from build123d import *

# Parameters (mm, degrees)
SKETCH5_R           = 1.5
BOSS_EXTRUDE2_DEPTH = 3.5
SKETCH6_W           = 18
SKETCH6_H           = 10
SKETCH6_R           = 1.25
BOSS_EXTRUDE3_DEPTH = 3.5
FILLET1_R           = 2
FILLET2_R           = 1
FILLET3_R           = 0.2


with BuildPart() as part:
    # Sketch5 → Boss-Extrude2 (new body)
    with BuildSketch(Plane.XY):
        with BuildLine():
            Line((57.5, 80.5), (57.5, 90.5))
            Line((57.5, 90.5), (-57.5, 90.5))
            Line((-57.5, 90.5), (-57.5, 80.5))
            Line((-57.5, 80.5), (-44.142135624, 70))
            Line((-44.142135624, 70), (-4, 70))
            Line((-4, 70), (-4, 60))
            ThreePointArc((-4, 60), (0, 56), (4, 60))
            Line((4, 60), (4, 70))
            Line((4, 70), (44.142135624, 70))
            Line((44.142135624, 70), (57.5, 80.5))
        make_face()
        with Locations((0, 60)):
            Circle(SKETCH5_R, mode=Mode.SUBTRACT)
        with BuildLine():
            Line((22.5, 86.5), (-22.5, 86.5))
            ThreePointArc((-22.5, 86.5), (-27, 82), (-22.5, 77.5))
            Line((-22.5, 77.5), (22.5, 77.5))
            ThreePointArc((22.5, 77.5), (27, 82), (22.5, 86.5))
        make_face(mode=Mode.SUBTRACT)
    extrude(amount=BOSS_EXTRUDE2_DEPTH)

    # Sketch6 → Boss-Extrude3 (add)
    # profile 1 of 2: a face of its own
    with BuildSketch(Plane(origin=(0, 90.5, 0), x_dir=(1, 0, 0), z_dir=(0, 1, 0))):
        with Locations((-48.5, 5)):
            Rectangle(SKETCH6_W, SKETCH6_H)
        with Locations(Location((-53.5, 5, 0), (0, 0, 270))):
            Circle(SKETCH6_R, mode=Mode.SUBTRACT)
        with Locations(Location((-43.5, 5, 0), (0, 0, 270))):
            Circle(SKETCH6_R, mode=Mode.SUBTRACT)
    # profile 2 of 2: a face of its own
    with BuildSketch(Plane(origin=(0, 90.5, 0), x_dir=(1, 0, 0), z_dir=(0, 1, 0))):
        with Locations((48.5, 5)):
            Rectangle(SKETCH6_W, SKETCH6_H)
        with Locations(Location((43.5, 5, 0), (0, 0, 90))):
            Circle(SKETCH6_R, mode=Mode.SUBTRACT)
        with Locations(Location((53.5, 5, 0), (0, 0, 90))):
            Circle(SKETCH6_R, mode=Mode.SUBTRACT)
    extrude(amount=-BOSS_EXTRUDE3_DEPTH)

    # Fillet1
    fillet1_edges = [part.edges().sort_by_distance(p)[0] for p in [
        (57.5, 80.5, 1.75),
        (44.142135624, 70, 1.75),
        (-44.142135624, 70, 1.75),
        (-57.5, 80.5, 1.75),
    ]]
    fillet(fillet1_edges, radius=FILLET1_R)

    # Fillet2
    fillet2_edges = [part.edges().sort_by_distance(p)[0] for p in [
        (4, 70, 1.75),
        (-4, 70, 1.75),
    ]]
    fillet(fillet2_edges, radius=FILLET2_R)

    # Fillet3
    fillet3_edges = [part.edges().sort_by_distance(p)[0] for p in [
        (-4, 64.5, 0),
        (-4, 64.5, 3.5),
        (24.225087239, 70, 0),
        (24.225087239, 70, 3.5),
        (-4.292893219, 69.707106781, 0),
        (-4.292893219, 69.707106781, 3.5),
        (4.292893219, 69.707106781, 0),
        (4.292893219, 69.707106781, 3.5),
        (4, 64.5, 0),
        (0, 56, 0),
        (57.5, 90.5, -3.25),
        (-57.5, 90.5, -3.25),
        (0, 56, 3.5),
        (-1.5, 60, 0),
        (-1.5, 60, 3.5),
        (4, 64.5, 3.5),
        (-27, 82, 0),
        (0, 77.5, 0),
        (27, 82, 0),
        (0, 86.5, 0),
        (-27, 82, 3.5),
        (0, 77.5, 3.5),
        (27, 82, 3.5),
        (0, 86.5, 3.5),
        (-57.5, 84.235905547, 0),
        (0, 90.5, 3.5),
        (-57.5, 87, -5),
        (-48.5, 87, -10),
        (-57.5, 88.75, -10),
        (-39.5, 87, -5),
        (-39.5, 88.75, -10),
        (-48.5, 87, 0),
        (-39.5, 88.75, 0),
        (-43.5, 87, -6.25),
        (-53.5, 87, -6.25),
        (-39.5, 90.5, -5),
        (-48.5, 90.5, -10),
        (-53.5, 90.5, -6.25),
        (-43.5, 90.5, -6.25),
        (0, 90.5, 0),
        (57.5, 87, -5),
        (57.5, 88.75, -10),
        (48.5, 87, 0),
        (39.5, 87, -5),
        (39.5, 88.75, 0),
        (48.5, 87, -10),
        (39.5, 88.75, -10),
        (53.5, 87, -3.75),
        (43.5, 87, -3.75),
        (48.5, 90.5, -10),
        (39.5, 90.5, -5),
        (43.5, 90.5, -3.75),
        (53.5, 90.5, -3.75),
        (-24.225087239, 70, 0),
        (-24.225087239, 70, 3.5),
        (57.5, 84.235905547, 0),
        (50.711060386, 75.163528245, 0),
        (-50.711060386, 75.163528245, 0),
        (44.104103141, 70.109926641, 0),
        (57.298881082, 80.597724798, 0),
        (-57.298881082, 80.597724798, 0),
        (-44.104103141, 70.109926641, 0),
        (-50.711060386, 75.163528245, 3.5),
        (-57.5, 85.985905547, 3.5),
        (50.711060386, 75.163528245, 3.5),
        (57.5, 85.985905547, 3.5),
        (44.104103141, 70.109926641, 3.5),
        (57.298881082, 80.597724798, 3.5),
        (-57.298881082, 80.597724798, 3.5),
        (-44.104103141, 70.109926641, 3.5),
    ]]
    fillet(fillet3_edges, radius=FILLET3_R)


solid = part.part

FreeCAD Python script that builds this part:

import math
import FreeCAD as App
import Part
import Sketcher
Q = App.Units.Quantity


def edges_at(feature, points):
    """Names of the edges that pass closest to the given points."""
    edges = feature.Shape.Edges
    near = lambda p: min(range(len(edges)), key=lambda i: edges[i].distToShape(Part.Vertex(*p))[0])
    return sorted({f"Edge{near(p) + 1}" for p in points})


def add_polygon(sketch, points):
    """Adds a closed chain of lines whose ends are joined by coincident constraints."""
    first, n = sketch.GeometryCount, len(points)
    for a, b in zip(points, points[1:] + points[:1]):
        sketch.addGeometry(Part.LineSegment(App.Vector(*a, 0), App.Vector(*b, 0)), False)
    for i in range(n):
        sketch.addConstraint(Sketcher.Constraint("Coincident", first + i, 2, first + (i + 1) % n, 1))

doc = App.newDocument("Part")
body = doc.addObject("PartDesign::Body", "Body")

# Sketch on XY plane
sketch1 = body.newObject("Sketcher::SketchObject", "Sketch")
sketch1.AttachmentSupport = (doc.getObject("XY_Plane"), [""])
sketch1.MapMode = "FlatFace"
sketch1.addGeometry([
    Part.LineSegment(App.Vector(57.5, 80.5, 0), App.Vector(57.5, 90.5, 0)),  # 0
    Part.LineSegment(App.Vector(57.5, 90.5, 0), App.Vector(-57.5, 90.5, 0)),  # 1
    Part.LineSegment(App.Vector(-57.5, 90.5, 0), App.Vector(-57.5, 80.5, 0)),  # 2
    Part.LineSegment(App.Vector(-57.5, 80.5, 0), App.Vector(-44.142136, 70, 0)),  # 3
    Part.LineSegment(App.Vector(-44.142136, 70, 0), App.Vector(-4, 70, 0)),  # 4
    Part.LineSegment(App.Vector(-4, 70, 0), App.Vector(-4, 60, 0)),  # 5
    Part.ArcOfCircle(Part.Circle(App.Vector(0, 60, 0), App.Vector(0, 0, 1), 4), math.radians(180), math.radians(360)),  # 6
    Part.LineSegment(App.Vector(4, 60, 0), App.Vector(4, 70, 0)),  # 7
    Part.LineSegment(App.Vector(4, 70, 0), App.Vector(44.142136, 70, 0)),  # 8
    Part.LineSegment(App.Vector(44.142136, 70, 0), App.Vector(57.5, 80.5, 0)),  # 9
    Part.Circle(App.Vector(0, 60, 0), App.Vector(0, 0, 1), 1.5),  # 10
    Part.LineSegment(App.Vector(-22.5, 86.5, 0), App.Vector(22.5, 86.5, 0)),  # 11
    Part.ArcOfCircle(Part.Circle(App.Vector(22.5, 82, 0), App.Vector(0, 0, 1), 4.5), math.radians(-90), math.radians(90)),  # 12
    Part.LineSegment(App.Vector(22.5, 77.5, 0), App.Vector(-22.5, 77.5, 0)),  # 13
    Part.ArcOfCircle(Part.Circle(App.Vector(-22.5, 82, 0), App.Vector(0, 0, 1), 4.5), math.radians(90), math.radians(270)),  # 14
], False)
sketch1.addConstraint([
    Sketcher.Constraint("Coincident", 0, 2, 1, 1),
    Sketcher.Constraint("Coincident", 1, 2, 2, 1),
    Sketcher.Constraint("Coincident", 2, 2, 3, 1),
    Sketcher.Constraint("Coincident", 3, 2, 4, 1),
    Sketcher.Constraint("Coincident", 4, 2, 5, 1),
    Sketcher.Constraint("Tangent", 5, 2, 6, 1),
    Sketcher.Constraint("Tangent", 6, 2, 7, 1),
    Sketcher.Constraint("Coincident", 7, 2, 8, 1),
    Sketcher.Constraint("Coincident", 8, 2, 9, 1),
    Sketcher.Constraint("Coincident", 9, 2, 0, 1),
    Sketcher.Constraint("Tangent", 11, 2, 12, 2),
    Sketcher.Constraint("Tangent", 12, 1, 13, 1),
    Sketcher.Constraint("Tangent", 13, 2, 14, 2),
    Sketcher.Constraint("Tangent", 14, 1, 11, 1),
    Sketcher.Constraint("Vertical", 0),
    Sketcher.Constraint("Horizontal", 1),
    Sketcher.Constraint("Vertical", 2),
    Sketcher.Constraint("Horizontal", 4),
    Sketcher.Constraint("Vertical", 5),
    Sketcher.Constraint("Vertical", 7),
    Sketcher.Constraint("Horizontal", 8),
    Sketcher.Constraint("Horizontal", 11),
    Sketcher.Constraint("Horizontal", 13),
    Sketcher.Constraint("Coincident", 10, 3, 6, 3),
    Sketcher.Constraint("Symmetric", 4, 2, 7, 2, -2),
    Sketcher.Constraint("Symmetric", 2, 2, 9, 2, -2),
    Sketcher.Constraint("Equal", 4, 8),
    Sketcher.Constraint("Equal", 2, 5),
    Sketcher.Constraint("Diameter", 10, Q("3 mm")),
    Sketcher.Constraint("Radius", 6, Q("4 mm")),
    Sketcher.Constraint("Radius", 12, Q("4.5 mm")),
    Sketcher.Constraint("DistanceX", 1, 2, 1, 1, Q("115 mm")),
    Sketcher.Constraint("DistanceX", 11, 1, 11, 2, Q("45 mm")),
    Sketcher.Constraint("DistanceY", 0, 1, 0, 2, Q("10 mm")),
    Sketcher.Constraint("DistanceY", -1, 1, 6, 3, Q("60 mm")),
    Sketcher.Constraint("DistanceY", -1, 1, 12, 3, Q("82 mm")),
    Sketcher.Constraint("DistanceX", 12, 3, 0, 2, Q("35 mm")),
    Sketcher.Constraint("DistanceY", -1, 1, 0, 2, Q("90.5 mm")),
    Sketcher.Constraint("Distance", 3, Q("16.99066 mm")),
])
pad1 = body.newObject("PartDesign::Pad", "Pad")
pad1.Profile = sketch1
pad1.Length = 3.5

# Sketch on XZ plane
sketch2 = body.newObject("Sketcher::SketchObject", "Sketch001")
sketch2.AttachmentSupport = (doc.getObject("XZ_Plane"), [""])
sketch2.MapMode = "FlatFace"
sketch2.AttachmentOffset = App.Placement(App.Vector(0, 0, -90.5), App.Rotation())
add_polygon(sketch2, [(-57.5, -10), (-57.5, 0), (-39.5, 0), (-39.5, -10)])  # lines 0-3
sketch2.addGeometry(Part.Circle(App.Vector(-53.5, -5, 0), App.Vector(0, 0, 1), 1.25), False)  # 4
sketch2.addGeometry(Part.Circle(App.Vector(-43.5, -5, 0), App.Vector(0, 0, 1), 1.25), False)  # 5
add_polygon(sketch2, [(39.5, -10), (39.5, 0), (57.5, 0), (57.5, -10)])  # lines 6-9
sketch2.addGeometry(Part.Circle(App.Vector(43.5, -5, 0), App.Vector(0, 0, 1), 1.25), False)  # 10
sketch2.addGeometry(Part.Circle(App.Vector(53.5, -5, 0), App.Vector(0, 0, 1), 1.25), False)  # 11
sketch2.addConstraint([
    Sketcher.Constraint("Vertical", 0),
    Sketcher.Constraint("Horizontal", 1),
    Sketcher.Constraint("Vertical", 2),
    Sketcher.Constraint("Horizontal", 3),
    Sketcher.Constraint("Vertical", 6),
    Sketcher.Constraint("Horizontal", 7),
    Sketcher.Constraint("Vertical", 8),
    Sketcher.Constraint("Horizontal", 9),
    Sketcher.Constraint("Equal", 4, 5),
    Sketcher.Constraint("Equal", 5, 10),
    Sketcher.Constraint("Equal", 10, 11),
    Sketcher.Constraint("Symmetric", 1, 2, 6, 2, -1, 1),
    Sketcher.Constraint("Symmetric", 5, 3, 10, 3, -2),
    Sketcher.Constraint("Symmetric", 4, 3, 11, 3, -2),
    Sketcher.Constraint("Symmetric", 0, 2, 7, 2, -2),
    Sketcher.Constraint("Horizontal", 4, 3, 5, 3),
    Sketcher.Constraint("Horizontal", 3, 2, 8, 2),
    Sketcher.Constraint("Diameter", 4, Q("2.5 mm")),
    Sketcher.Constraint("DistanceX", 1, 1, 1, 2, Q("18 mm")),
    Sketcher.Constraint("DistanceY", 0, 1, 0, 2, Q("10 mm")),
    Sketcher.Constraint("DistanceY", 4, 3, -1, 1, Q("5 mm")),
    Sketcher.Constraint("DistanceX", 4, 3, 5, 3, Q("10 mm")),
    Sketcher.Constraint("DistanceX", 5, 3, 10, 3, Q("87 mm")),
    Sketcher.Constraint("DistanceX", 0, 2, 4, 3, Q("4 mm")),
])
pad2 = body.newObject("PartDesign::Pad", "Pad001")
pad2.Profile = sketch2
pad2.Length = 3.5
doc.recompute()

fillet = body.newObject("PartDesign::Fillet", "Fillet")
fillet.Base = (pad2, edges_at(pad2, [
    (57.5, 80.5, 1.75),
    (44.142, 70, 1.75),
    (-44.142, 70, 1.75),
    (-57.5, 80.5, 1.75),
]))
fillet.Radius = 2
doc.recompute()

fillet2 = body.newObject("PartDesign::Fillet", "Fillet001")
fillet2.Base = (fillet, edges_at(fillet, [(4, 70, 1.75), (-4, 70, 1.75)]))
fillet2.Radius = 1
doc.recompute()

fillet3 = body.newObject("PartDesign::Fillet", "Fillet002")
fillet3.Base = (fillet2, ["Edge1"])
fillet3.UseAllEdges = True
fillet3.Radius = 0.2

doc.recompute()
